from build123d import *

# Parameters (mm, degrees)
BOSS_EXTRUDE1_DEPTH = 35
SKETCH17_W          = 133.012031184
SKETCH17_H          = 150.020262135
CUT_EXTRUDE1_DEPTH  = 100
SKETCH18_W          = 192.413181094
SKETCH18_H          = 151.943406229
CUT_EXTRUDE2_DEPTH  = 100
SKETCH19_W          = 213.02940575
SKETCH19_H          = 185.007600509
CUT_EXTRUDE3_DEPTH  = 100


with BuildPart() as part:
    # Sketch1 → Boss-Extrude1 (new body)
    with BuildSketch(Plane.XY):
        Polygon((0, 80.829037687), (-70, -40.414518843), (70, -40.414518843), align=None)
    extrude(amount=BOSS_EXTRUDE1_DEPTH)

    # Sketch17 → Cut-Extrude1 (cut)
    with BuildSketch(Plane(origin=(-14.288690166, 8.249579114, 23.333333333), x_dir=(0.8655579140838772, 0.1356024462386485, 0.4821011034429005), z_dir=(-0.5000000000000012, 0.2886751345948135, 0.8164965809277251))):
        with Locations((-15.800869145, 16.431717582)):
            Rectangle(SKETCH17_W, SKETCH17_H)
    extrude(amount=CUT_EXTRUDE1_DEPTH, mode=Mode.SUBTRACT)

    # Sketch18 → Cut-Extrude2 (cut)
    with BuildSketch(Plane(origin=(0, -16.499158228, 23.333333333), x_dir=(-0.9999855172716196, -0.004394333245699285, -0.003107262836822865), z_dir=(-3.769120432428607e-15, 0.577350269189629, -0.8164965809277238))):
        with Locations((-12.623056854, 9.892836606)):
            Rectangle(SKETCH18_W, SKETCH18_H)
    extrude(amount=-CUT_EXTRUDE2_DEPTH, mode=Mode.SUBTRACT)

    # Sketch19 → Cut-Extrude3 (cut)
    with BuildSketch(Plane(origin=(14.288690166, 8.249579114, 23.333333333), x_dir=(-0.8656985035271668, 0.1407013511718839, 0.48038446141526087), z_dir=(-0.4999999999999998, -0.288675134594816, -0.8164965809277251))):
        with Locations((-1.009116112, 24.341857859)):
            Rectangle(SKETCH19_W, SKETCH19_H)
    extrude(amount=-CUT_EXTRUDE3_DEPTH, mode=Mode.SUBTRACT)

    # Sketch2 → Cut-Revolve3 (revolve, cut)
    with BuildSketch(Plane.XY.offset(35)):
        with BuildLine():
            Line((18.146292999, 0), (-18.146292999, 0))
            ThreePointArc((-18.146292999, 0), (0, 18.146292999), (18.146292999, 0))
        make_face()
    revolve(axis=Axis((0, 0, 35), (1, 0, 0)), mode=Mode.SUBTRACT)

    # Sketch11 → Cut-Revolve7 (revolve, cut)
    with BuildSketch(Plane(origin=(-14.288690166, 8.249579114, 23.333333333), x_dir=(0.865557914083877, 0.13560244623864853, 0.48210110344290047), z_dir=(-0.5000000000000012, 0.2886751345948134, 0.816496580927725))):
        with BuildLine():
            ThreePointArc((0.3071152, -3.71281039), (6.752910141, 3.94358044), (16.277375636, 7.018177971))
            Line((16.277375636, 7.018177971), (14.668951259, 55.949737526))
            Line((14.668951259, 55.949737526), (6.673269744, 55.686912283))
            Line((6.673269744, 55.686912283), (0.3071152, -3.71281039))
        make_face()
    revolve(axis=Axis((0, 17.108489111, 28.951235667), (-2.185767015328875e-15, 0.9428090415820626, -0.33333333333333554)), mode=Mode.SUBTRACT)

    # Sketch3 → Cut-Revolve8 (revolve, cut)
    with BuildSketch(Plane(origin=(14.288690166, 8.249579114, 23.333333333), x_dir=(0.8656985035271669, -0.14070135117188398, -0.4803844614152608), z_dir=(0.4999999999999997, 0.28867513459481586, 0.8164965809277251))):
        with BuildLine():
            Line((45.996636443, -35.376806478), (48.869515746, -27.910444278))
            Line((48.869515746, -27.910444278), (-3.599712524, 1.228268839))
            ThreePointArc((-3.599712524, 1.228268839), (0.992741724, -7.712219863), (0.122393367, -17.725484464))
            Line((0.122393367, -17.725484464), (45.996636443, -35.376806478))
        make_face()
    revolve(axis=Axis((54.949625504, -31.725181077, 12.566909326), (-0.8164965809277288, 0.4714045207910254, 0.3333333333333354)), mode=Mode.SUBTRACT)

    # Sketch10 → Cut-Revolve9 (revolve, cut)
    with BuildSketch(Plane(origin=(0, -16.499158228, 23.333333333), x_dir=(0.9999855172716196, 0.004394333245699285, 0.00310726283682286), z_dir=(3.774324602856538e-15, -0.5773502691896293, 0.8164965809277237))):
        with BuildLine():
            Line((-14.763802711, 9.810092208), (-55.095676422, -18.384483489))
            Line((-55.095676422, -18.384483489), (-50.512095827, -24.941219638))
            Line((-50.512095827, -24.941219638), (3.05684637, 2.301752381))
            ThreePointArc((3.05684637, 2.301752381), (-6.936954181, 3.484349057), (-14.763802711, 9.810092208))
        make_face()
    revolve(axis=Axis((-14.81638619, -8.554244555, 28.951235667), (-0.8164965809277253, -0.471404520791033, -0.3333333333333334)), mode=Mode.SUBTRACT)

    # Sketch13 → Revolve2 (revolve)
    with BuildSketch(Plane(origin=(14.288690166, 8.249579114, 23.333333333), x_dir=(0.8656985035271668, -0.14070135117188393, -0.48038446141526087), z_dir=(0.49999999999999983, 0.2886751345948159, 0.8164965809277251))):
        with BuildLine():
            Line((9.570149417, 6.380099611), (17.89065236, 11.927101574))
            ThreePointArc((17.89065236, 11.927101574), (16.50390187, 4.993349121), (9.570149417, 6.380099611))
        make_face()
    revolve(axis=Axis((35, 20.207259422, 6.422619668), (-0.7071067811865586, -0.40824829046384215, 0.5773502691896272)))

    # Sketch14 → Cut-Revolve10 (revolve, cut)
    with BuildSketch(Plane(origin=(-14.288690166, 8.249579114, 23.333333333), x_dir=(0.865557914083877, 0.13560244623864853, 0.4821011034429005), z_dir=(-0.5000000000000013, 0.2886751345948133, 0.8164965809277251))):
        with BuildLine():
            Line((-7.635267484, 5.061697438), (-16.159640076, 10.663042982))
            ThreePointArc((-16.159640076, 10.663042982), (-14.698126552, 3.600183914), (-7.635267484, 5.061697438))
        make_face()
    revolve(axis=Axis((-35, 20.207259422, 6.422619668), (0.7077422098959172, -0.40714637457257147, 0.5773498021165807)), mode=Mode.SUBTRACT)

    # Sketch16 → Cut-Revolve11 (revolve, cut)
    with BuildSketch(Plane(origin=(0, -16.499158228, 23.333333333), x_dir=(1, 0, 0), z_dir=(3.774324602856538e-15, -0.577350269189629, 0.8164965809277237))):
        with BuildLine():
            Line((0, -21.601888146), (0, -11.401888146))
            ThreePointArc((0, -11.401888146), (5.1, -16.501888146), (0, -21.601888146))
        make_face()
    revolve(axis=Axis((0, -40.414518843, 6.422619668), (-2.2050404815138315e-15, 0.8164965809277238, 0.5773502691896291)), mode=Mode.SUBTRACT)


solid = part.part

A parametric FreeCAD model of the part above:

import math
import FreeCAD as App
import Part
import Sketcher
Q = App.Units.Quantity


def add_polygon(sketch, points):
    """Adds a closed chain of lines whose ends are joined by coincident constraints."""
    first, n = sketch.GeometryCount, len(points)
    for a, b in zip(points, points[1:] + points[:1]):
        sketch.addGeometry(Part.LineSegment(App.Vector(*a, 0), App.Vector(*b, 0)), False)
    for i in range(n):
        sketch.addConstraint(Sketcher.Constraint("Coincident", first + i, 2, first + (i + 1) % n, 1))

doc = App.newDocument("Part")
body = doc.addObject("PartDesign::Body", "Body")

# Sketch on XY plane
sketch1 = doc.addObject("Sketcher::SketchObject", "Sketch")
body.addObject(sketch1)
sketch1.AttachmentSupport = (doc.XY_Plane, [""])
sketch1.MapMode = "FlatFace"
add_polygon(sketch1, [(0, 81), (-70, -40), (70, -40)])  # lines 0-2
sketch1.addConstraint([
    Sketcher.Constraint("Horizontal", 1),
    Sketcher.Constraint("PointOnObject", 2, 2, -2),
    Sketcher.Constraint("Equal", 0, 2),
    Sketcher.Constraint("DistanceX", 1, 1, 1, 2, Q("140 mm")),
    Sketcher.Constraint("Angle", 0, Q("-120 deg")),
    Sketcher.Constraint("DistanceY", 0, 2, -1, 1, Q("40.414519 mm")),
])
pad1 = doc.addObject("PartDesign::Pad", "Pad")
body.addObject(pad1)
pad1.Profile = sketch1
pad1.Length = 35

# Sketch on an angled plane
sketch2 = doc.addObject("Sketcher::SketchObject", "Sketch001")
body.addObject(sketch2)
sketch2.Placement = App.Placement(App.Vector(-14.28869, 8.249579, 23.333333), App.Rotation(App.Vector(0.865557914, 0.135602446, 0.482101103), App.Vector(0.028451667, 0.947775629, -0.317666271), App.Vector(-0.5, 0.288675135, 0.816496581), "ZXY"))
add_polygon(sketch2, [(-82, 91), (-82, -59), (51, -59), (51, 91)])  # lines 0-3
sketch2.addConstraint([
    Sketcher.Constraint("Vertical", 0),
    Sketcher.Constraint("Horizontal", 1),
    Sketcher.Constraint("Vertical", 2),
    Sketcher.Constraint("Horizontal", 3),
    Sketcher.Constraint("DistanceX", 1, 1, 1, 2, Q("133.012031 mm")),
    Sketcher.Constraint("DistanceY", 0, 2, 0, 1, Q("150.020262 mm")),
    Sketcher.Constraint("DistanceY", -1, 1, 2, 2, Q("91.441849 mm")),
    Sketcher.Constraint("DistanceX", 0, 2, -1, 1, Q("82.306885 mm")),
])
pocket1 = doc.addObject("PartDesign::Pocket", "Pocket")
body.addObject(pocket1)
pocket1.Profile = sketch2
pocket1.Length = 100
pocket1.Reversed = True

# Sketch on an angled plane
sketch3 = doc.addObject("Sketcher::SketchObject", "Sketch002")
body.addObject(sketch3)
sketch3.Placement = App.Placement(App.Vector(0, -16.499158, 23.333333), App.Rotation(App.Vector(-0.999985517, -0.004394333, -0.003107263), App.Vector(-0.005381937, 0.816484756, 0.577341907), App.Vector(0, 0.577350269, -0.816496581), "ZXY"))
add_polygon(sketch3, [(-109, 86), (-109, -66), (84, -66), (84, 86)])  # lines 0-3
sketch3.addConstraint([
    Sketcher.Constraint("Vertical", 0),
    Sketcher.Constraint("Horizontal", 1),
    Sketcher.Constraint("Vertical", 2),
    Sketcher.Constraint("Horizontal", 3),
    Sketcher.Constraint("DistanceX", 1, 1, 1, 2, Q("192.413181 mm")),
    Sketcher.Constraint("DistanceY", 0, 2, 0, 1, Q("151.943406 mm")),
    Sketcher.Constraint("DistanceY", -1, 1, 2, 2, Q("85.86454 mm")),
    Sketcher.Constraint("DistanceX", 0, 2, -1, 1, Q("108.829647 mm")),
])
pocket2 = doc.addObject("PartDesign::Pocket", "Pocket001")
body.addObject(pocket2)
pocket2.Profile = sketch3
pocket2.Length = 100

# Sketch on an angled plane
sketch4 = doc.addObject("Sketcher::SketchObject", "Sketch003")
body.addObject(sketch4)
sketch4.Placement = App.Placement(App.Vector(14.28869, 8.249579, 23.333333), App.Rotation(App.Vector(-0.865698504, 0.140701351, 0.480384461), App.Vector(-0.023792877, 0.947032099, -0.320256308), App.Vector(-0.5, -0.288675135, -0.816496581), "ZXY"))
add_polygon(sketch4, [(-108, 117), (-108, -68), (106, -68), (106, 117)])  # lines 0-3
sketch4.addConstraint([
    Sketcher.Constraint("Vertical", 0),
    Sketcher.Constraint("Horizontal", 1),
    Sketcher.Constraint("Vertical", 2),
    Sketcher.Constraint("Horizontal", 3),
    Sketcher.Constraint("DistanceY", 0, 2, 0, 1, Q("185.007601 mm")),
    Sketcher.Constraint("DistanceX", 1, 1, 1, 2, Q("213.029406 mm")),
    Sketcher.Constraint("DistanceX", 0, 2, -1, 1, Q("107.523819 mm")),
    Sketcher.Constraint("DistanceY", -1, 1, 2, 2, Q("116.845658 mm")),
])
pocket3 = doc.addObject("PartDesign::Pocket", "Pocket002")
body.addObject(pocket3)
pocket3.Profile = sketch4
pocket3.Length = 100

# Sketch on XY plane
sketch5 = doc.addObject("Sketcher::SketchObject", "Sketch004")
body.addObject(sketch5)
sketch5.AttachmentSupport = (doc.XY_Plane, [""])
sketch5.MapMode = "FlatFace"
sketch5.AttachmentOffset = App.Placement(App.Vector(0, 0, 35), App.Rotation())
sketch5.addGeometry([
    Part.LineSegment(App.Vector(-18, 0, 0), App.Vector(18, 0, 0)),
    Part.ArcOfCircle(Part.Circle(App.Vector(0, 0, 0), App.Vector(0, 0, 1), 18), math.radians(0), math.radians(180)),
], False)
sketch5.addConstraint([
    Sketcher.Constraint("Coincident", 0, 1, 1, 2),
    Sketcher.Constraint("Coincident", 1, 1, 0, 2),
    Sketcher.Constraint("Horizontal", 0),
    Sketcher.Constraint("Coincident", 1, 3, -1, 1),
    Sketcher.Constraint("PointOnObject", 0, 1, -1),
    Sketcher.Constraint("Radius", 1, Q("18.146293 mm")),
])
groove = doc.addObject("PartDesign::Groove", "Groove")
body.addObject(groove)
groove.Profile = sketch5
groove.ReferenceAxis = (sketch5, ["H_Axis"])
groove.Angle = 360

# Sketch on an angled plane
sketch6 = doc.addObject("Sketcher::SketchObject", "Sketch005")
body.addObject(sketch6)
sketch6.Placement = App.Placement(App.Vector(-14.28869, 8.249579, 23.333333), App.Rotation(App.Vector(0.865557914, 0.135602446, 0.482101103), App.Vector(0.028451667, 0.947775629, -0.317666271), App.Vector(-0.5, 0.288675135, 0.816496581), "ZXY"))
sketch6.addGeometry([
    Part.ArcOfCircle(Part.Circle(App.Vector(17, -11, 0), App.Vector(0, 0, 1), 18), math.radians(92), math.radians(156)),
    Part.LineSegment(App.Vector(16, 7, 0), App.Vector(15, 56, 0)),
    Part.LineSegment(App.Vector(15, 56, 0), App.Vector(7, 56, 0)),
    Part.LineSegment(App.Vector(7, 56, 0), App.Vector(0, -4, 0)),
], False)
sketch6.addGeometry(Part.LineSegment(App.Vector(17, -11, 0), App.Vector(15, 56, 0)), True)  # axis
sketch6.addConstraint([
    Sketcher.Constraint("Coincident", 0, 1, 1, 1),
    Sketcher.Constraint("Coincident", 1, 2, 2, 1),
    Sketcher.Constraint("Coincident", 2, 2, 3, 1),
    Sketcher.Constraint("Coincident", 3, 2, 0, 2),
    Sketcher.Constraint("Coincident", 4, 1, 0, 3),
    Sketcher.Constraint("Coincident", 4, 2, 1, 2),
    Sketcher.Constraint("Perpendicular", 1, 2),
    Sketcher.Constraint("Perpendicular", 2, 4),
    Sketcher.Constraint("Distance", 2, Q("8 mm")),
    Sketcher.Constraint("Radius", 0, Q("18.146293 mm")),
    Sketcher.Constraint("Distance", 4, Q("67.104281 mm")),
    Sketcher.Constraint("DistanceX", -1, 1, 0, 3, Q("16.873539 mm")),
    Sketcher.Constraint("DistanceY", 0, 3, -1, 1, Q("11.118319 mm")),
    Sketcher.Constraint("DistanceX", -1, 1, 1, 2, Q("14.668951 mm")),
    Sketcher.Constraint("DistanceY", 3, 2, -1, 1, Q("3.71281 mm")),
])
groove2 = doc.addObject("PartDesign::Groove", "Groove001")
body.addObject(groove2)
groove2.Profile = sketch6
groove2.ReferenceAxis = (sketch6, ["Axis0"])
groove2.Angle = 360

# Sketch on an angled plane
sketch7 = doc.addObject("Sketcher::SketchObject", "Sketch006")
body.addObject(sketch7)
sketch7.Placement = App.Placement(App.Vector(14.28869, 8.249579, 23.333333), App.Rotation(App.Vector(0.865698504, -0.140701351, -0.480384461), App.Vector(-0.023792877, 0.947032099, -0.320256308), App.Vector(0.5, 0.288675135, 0.816496581), "ZXY"))
sketch7.addGeometry([
    Part.LineSegment(App.Vector(46, -35, 0), App.Vector(49, -28, 0)),
    Part.LineSegment(App.Vector(49, -28, 0), App.Vector(-4, 1, 0)),
    Part.ArcOfCircle(Part.Circle(App.Vector(-17, -11, 0), App.Vector(0, 0, 1), 18), math.radians(-21), math.radians(43)),
    Part.LineSegment(App.Vector(0, -18, 0), App.Vector(46, -35, 0)),
], False)
sketch7.addGeometry(Part.LineSegment(App.Vector(46, -35, 0), App.Vector(-17, -11, 0)), True)  # axis
sketch7.addConstraint([
    Sketcher.Constraint("Coincident", 0, 2, 1, 1),
    Sketcher.Constraint("Coincident", 1, 2, 2, 2),
    Sketcher.Constraint("Coincident", 2, 1, 3, 1),
    Sketcher.Constraint("Coincident", 3, 2, 0, 1),
    Sketcher.Constraint("Coincident", 4, 1, 3, 2),
    Sketcher.Constraint("Coincident", 4, 2, 2, 3),
    Sketcher.Constraint("Perpendicular", 0, 3),
    Sketcher.Constraint("Parallel", 3, 4),
    Sketcher.Constraint("Distance", 0, Q("8 mm")),
    Sketcher.Constraint("Radius", 2, Q("18.146293 mm")),
    Sketcher.Constraint("Distance", 1, Q("60.017368 mm")),
    Sketcher.Constraint("Distance", 3, Q("49.152979 mm")),
    Sketcher.Constraint("DistanceY", 2, 3, -1, 1, Q("11.208971 mm")),
    Sketcher.Constraint("DistanceY", -1, 1, 1, 2, Q("1.228269 mm")),
    Sketcher.Constraint("DistanceX", 2, 3, -1, 1, Q("16.813456 mm")),
])
groove3 = doc.addObject("PartDesign::Groove", "Groove002")
body.addObject(groove3)
groove3.Profile = sketch7
groove3.ReferenceAxis = (sketch7, ["Axis0"])
groove3.Angle = 360

# Sketch on an angled plane
sketch8 = doc.addObject("Sketcher::SketchObject", "Sketch007")
body.addObject(sketch8)
sketch8.Placement = App.Placement(App.Vector(0, -16.499158, 23.333333), App.Rotation(App.Vector(0.999985517, 0.004394333, 0.003107263), App.Vector(-0.005381937, 0.816484756, 0.577341907), App.Vector(0, -0.577350269, 0.816496581), "ZXY"))
sketch8.addGeometry([
    Part.LineSegment(App.Vector(-15, 10, 0), App.Vector(-55, -18, 0)),
    Part.LineSegment(App.Vector(-55, -18, 0), App.Vector(-51, -25, 0)),
    Part.LineSegment(App.Vector(-51, -25, 0), App.Vector(3, 2, 0)),
    Part.ArcOfCircle(Part.Circle(App.Vector(0, 20, 0), App.Vector(0, 0, 1), 18), math.radians(-145), math.radians(-81)),
], False)
sketch8.addGeometry(Part.LineSegment(App.Vector(0, 20, 0), App.Vector(-55, -18, 0)), True)  # axis
sketch8.addConstraint([
    Sketcher.Constraint("Coincident", 0, 2, 1, 1),
    Sketcher.Constraint("Coincident", 1, 2, 2, 1),
    Sketcher.Constraint("Coincident", 2, 2, 3, 2),
    Sketcher.Constraint("Coincident", 3, 1, 0, 1),
    Sketcher.Constraint("Coincident", 4, 1, 3, 3),
    Sketcher.Constraint("Coincident", 4, 2, 0, 2),
    Sketcher.Constraint("Perpendicular", 0, 1),
    Sketcher.Constraint("Perpendicular", 1, 4),
    Sketcher.Constraint("Distance", 1, Q("8 mm")),
    Sketcher.Constraint("Radius", 3, Q("18.146293 mm")),
    Sketcher.Constraint("Distance", 4, Q("67.355988 mm")),
    Sketcher.Constraint("DistanceY", 1, 2, -1, 1, Q("24.94122 mm")),
    Sketcher.Constraint("DistanceX", 0, 2, 3, 3, Q("55.204431 mm")),
    Sketcher.Constraint("DistanceX", 3, 1, 2, 2, Q("17.820649 mm")),
    Sketcher.Constraint("DistanceX", -1, 1, 3, 3, Q("0.108754 mm")),
])
groove4 = doc.addObject("PartDesign::Groove", "Groove003")
body.addObject(groove4)
groove4.Profile = sketch8
groove4.ReferenceAxis = (sketch8, ["Axis0"])
groove4.Angle = 360

# Sketch on an angled plane
sketch9 = doc.addObject("Sketcher::SketchObject", "Sketch008")
body.addObject(sketch9)
sketch9.Placement = App.Placement(App.Vector(14.28869, 8.249579, 23.333333), App.Rotation(App.Vector(0.865698504, -0.140701351, -0.480384461), App.Vector(-0.023792877, 0.947032099, -0.320256308), App.Vector(0.5, 0.288675135, 0.816496581), "ZXY"))
sketch9.addGeometry([
    Part.LineSegment(App.Vector(18, 12, 0), App.Vector(10, 6, 0)),
    Part.ArcOfCircle(Part.Circle(App.Vector(14, 9, 0), App.Vector(0, 0, 1), 5), math.radians(-146), math.radians(34)),
], False)
sketch9.addGeometry(Part.LineSegment(App.Vector(18, 12, 0), App.Vector(10, 6, 0)), True)  # axis
sketch9.addConstraint([
    Sketcher.Constraint("Coincident", 0, 1, 1, 2),
    Sketcher.Constraint("Coincident", 1, 1, 0, 2),
    Sketcher.Constraint("Coincident", 2, 1, 0, 1),
    Sketcher.Constraint("Coincident", 2, 2, 1, 1),
    Sketcher.Constraint("Radius", 1, Q("5 mm")),
    Sketcher.Constraint("DistanceY", 1, 1, 0, 1, Q("5.547002 mm")),
    Sketcher.Constraint("DistanceX", -1, 1, 1, 3, Q("13.730401 mm")),
    Sketcher.Constraint("DistanceY", -1, 1, 1, 3, Q("9.153601 mm")),
    Sketcher.Constraint("DistanceY", -1, 1, 0, 1, Q("11.927102 mm")),
])
revolution = doc.addObject("PartDesign::Revolution", "Revolution")
body.addObject(revolution)
revolution.Profile = sketch9
revolution.ReferenceAxis = (sketch9, ["Axis0"])
revolution.Angle = 360

# Sketch on an angled plane
sketch10 = doc.addObject("Sketcher::SketchObject", "Sketch009")
body.addObject(sketch10)
sketch10.Placement = App.Placement(App.Vector(-14.28869, 8.249579, 23.333333), App.Rotation(App.Vector(0.865557914, 0.135602446, 0.482101103), App.Vector(0.028451667, 0.947775629, -0.317666271), App.Vector(-0.5, 0.288675135, 0.816496581), "ZXY"))
sketch10.addGeometry([
    Part.LineSegment(App.Vector(-8, 5, 0), App.Vector(-16, 11, 0)),
    Part.ArcOfCircle(Part.Circle(App.Vector(-12, 8, 0), App.Vector(0, 0, 1), 5), math.radians(147), math.radians(327)),
], False)
sketch10.addGeometry(Part.LineSegment(App.Vector(-16, 11, 0), App.Vector(-8, 5, 0)), True)  # axis
sketch10.addConstraint([
    Sketcher.Constraint("Coincident", 0, 1, 1, 2),
    Sketcher.Constraint("Coincident", 1, 1, 0, 2),
    Sketcher.Constraint("Coincident", 2, 1, 1, 1),
    Sketcher.Constraint("Coincident", 2, 2, 0, 1),
    Sketcher.Constraint("Radius", 1, Q("5.1 mm")),
    Sketcher.Constraint("DistanceY", -1, 1, 1, 3, Q("7.86237 mm")),
    Sketcher.Constraint("DistanceX", 1, 1, -1, 1, Q("16.15964 mm")),
    Sketcher.Constraint("DistanceX", 1, 3, -1, 1, Q("11.897454 mm")),
    Sketcher.Constraint("DistanceX", 0, 1, -1, 1, Q("7.635267 mm")),
])
groove5 = doc.addObject("PartDesign::Groove", "Groove004")
body.addObject(groove5)
groove5.Profile = sketch10
groove5.ReferenceAxis = (sketch10, ["Axis0"])
groove5.Angle = 360

# Sketch on an angled plane
sketch11 = doc.addObject("Sketcher::SketchObject", "Sketch010")
body.addObject(sketch11)
sketch11.Placement = App.Placement(App.Vector(0, -16.499158, 23.333333), App.Rotation(App.Vector(1, 0, 0), App.Vector(0, 0.816496581, 0.577350269), App.Vector(0, -0.577350269, 0.816496581), "ZXY"))
sketch11.addGeometry([
    Part.LineSegment(App.Vector(0, -11, 0), App.Vector(0, -22, 0)),
    Part.ArcOfCircle(Part.Circle(App.Vector(0, -17, 0), App.Vector(0, 0, 1), 5), math.radians(-90), math.radians(90)),
], False)
sketch11.addConstraint([
    Sketcher.Constraint("Coincident", 0, 1, 1, 2),
    Sketcher.Constraint("Coincident", 1, 1, 0, 2),
    Sketcher.Constraint("Vertical", 0),
    Sketcher.Constraint("PointOnObject", 1, 3, -2),
    Sketcher.Constraint("PointOnObject", 0, 1, -2),
    Sketcher.Constraint("Radius", 1, Q("5.1 mm")),
    Sketcher.Constraint("DistanceY", 1, 3, -1, 1, Q("16.501888 mm")),
])
groove6 = doc.addObject("PartDesign::Groove", "Groove005")
body.addObject(groove6)
groove6.Profile = sketch11
groove6.ReferenceAxis = (sketch11, ["V_Axis"])
groove6.Angle = 360

doc.recompute()
